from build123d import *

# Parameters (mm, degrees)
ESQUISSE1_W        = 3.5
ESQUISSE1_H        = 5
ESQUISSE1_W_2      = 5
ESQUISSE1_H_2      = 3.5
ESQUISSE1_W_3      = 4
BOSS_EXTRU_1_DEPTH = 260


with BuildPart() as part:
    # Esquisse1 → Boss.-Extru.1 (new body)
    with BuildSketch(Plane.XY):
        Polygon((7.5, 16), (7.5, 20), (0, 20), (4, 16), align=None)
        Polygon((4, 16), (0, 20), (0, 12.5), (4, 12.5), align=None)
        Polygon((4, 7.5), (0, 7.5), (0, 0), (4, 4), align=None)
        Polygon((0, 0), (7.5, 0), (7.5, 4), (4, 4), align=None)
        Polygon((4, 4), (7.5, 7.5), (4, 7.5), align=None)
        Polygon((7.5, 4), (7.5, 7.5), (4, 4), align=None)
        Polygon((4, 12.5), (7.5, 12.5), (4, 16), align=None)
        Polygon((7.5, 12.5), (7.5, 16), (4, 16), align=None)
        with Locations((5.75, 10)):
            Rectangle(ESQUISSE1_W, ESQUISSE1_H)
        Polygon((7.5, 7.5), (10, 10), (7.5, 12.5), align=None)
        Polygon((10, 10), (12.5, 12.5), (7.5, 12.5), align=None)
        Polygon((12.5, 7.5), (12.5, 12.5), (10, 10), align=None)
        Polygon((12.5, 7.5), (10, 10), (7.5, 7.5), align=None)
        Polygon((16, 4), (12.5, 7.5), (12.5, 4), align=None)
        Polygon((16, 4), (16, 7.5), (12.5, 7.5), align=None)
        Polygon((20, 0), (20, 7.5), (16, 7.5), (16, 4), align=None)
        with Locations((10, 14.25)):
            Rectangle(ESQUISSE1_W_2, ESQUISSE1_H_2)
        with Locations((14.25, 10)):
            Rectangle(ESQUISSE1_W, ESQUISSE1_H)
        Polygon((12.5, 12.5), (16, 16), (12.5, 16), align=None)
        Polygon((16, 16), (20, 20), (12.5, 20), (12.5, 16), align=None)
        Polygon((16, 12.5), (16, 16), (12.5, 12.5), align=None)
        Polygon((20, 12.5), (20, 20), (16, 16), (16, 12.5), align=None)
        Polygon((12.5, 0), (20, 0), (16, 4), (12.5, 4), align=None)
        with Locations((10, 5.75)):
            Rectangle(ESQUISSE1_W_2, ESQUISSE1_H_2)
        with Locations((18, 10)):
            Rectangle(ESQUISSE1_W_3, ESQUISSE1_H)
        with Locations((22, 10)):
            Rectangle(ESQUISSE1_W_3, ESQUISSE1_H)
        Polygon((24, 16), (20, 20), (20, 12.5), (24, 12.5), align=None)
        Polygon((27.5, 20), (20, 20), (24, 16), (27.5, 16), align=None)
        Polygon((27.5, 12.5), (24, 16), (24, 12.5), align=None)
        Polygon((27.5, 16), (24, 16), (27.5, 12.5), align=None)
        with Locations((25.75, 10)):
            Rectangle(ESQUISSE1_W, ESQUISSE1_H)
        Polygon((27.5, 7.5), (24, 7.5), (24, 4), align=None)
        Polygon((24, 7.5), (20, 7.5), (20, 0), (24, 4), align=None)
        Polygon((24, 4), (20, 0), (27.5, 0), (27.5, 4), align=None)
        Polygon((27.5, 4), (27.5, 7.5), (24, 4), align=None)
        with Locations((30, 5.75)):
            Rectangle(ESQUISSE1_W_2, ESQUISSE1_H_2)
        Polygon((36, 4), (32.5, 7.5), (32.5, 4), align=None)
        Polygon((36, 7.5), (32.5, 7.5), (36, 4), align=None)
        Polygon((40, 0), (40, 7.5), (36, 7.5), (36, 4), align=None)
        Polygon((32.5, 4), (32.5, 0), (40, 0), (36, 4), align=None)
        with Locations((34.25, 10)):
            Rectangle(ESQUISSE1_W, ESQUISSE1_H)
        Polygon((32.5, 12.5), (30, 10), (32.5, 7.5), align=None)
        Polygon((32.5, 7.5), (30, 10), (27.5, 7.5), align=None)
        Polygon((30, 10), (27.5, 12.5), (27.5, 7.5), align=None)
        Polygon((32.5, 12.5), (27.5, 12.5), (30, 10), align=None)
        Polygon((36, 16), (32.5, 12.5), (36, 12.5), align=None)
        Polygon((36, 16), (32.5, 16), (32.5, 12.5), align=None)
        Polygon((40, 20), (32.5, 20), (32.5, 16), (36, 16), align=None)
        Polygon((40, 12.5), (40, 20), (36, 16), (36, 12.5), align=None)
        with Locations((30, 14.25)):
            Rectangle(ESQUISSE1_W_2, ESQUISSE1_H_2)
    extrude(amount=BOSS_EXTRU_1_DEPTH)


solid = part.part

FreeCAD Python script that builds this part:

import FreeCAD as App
import Part
import Sketcher

V = App.Vector
Q = App.Units.Quantity


def add_polygon(sketch, points):
    """Adds a closed chain of lines whose ends are joined by coincident constraints."""
    first, n = sketch.GeometryCount, len(points)
    for a, b in zip(points, points[1:] + points[:1]):
        sketch.addGeometry(Part.LineSegment(App.Vector(*a, 0), App.Vector(*b, 0)), False)
    for i in range(n):
        sketch.addConstraint(Sketcher.Constraint("Coincident", first + i, 2, first + (i + 1) % n, 1))

doc = App.newDocument("Part")
body = doc.addObject("PartDesign::Body", "Body")

sketch1 = body.newObject("Sketcher::SketchObject", "Sketch")
sketch1.AttachmentSupport = (doc.getObject("XY_Plane"), [""])
sketch1.MapMode = "FlatFace"
add_polygon(sketch1, [(7.5, 20), (0, 20), (0, 12.5), (4, 12.5), (4, 7.5), (0, 7.5), (0, 0), (7.5, 0), (7.5, 4), (12.5, 4), (12.5, 0), (27.5, 0), (27.5, 4), (32.5, 4), (32.5, 0), (40, 0), (40, 7.5), (36, 7.5), (36, 12.5), (40, 12.5), (40, 20), (32.5, 20), (32.5, 16), (27.5, 16), (27.5, 20), (12.5, 20), (12.5, 16), (7.5, 16)])
sketch1.addConstraint(Sketcher.Constraint("Horizontal", 0))
sketch1.addConstraint(Sketcher.Constraint("Vertical", 1))
sketch1.addConstraint(Sketcher.Constraint("Horizontal", 2))
sketch1.addConstraint(Sketcher.Constraint("Vertical", 3))
sketch1.addConstraint(Sketcher.Constraint("Horizontal", 4))
sketch1.addConstraint(Sketcher.Constraint("Vertical", 5))
sketch1.addConstraint(Sketcher.Constraint("Horizontal", 6))
sketch1.addConstraint(Sketcher.Constraint("Vertical", 7))
sketch1.addConstraint(Sketcher.Constraint("Horizontal", 8))
sketch1.addConstraint(Sketcher.Constraint("Vertical", 9))
sketch1.addConstraint(Sketcher.Constraint("Horizontal", 10))
sketch1.addConstraint(Sketcher.Constraint("Vertical", 11))
sketch1.addConstraint(Sketcher.Constraint("Horizontal", 12))
sketch1.addConstraint(Sketcher.Constraint("Vertical", 13))
sketch1.addConstraint(Sketcher.Constraint("Horizontal", 14))
sketch1.addConstraint(Sketcher.Constraint("Vertical", 15))
sketch1.addConstraint(Sketcher.Constraint("Horizontal", 16))
sketch1.addConstraint(Sketcher.Constraint("Vertical", 17))
sketch1.addConstraint(Sketcher.Constraint("Horizontal", 18))
sketch1.addConstraint(Sketcher.Constraint("Vertical", 19))
sketch1.addConstraint(Sketcher.Constraint("Horizontal", 20))
sketch1.addConstraint(Sketcher.Constraint("Vertical", 21))
sketch1.addConstraint(Sketcher.Constraint("Horizontal", 22))
sketch1.addConstraint(Sketcher.Constraint("Vertical", 23))
sketch1.addConstraint(Sketcher.Constraint("Horizontal", 24))
sketch1.addConstraint(Sketcher.Constraint("Vertical", 25))
sketch1.addConstraint(Sketcher.Constraint("Horizontal", 26))
sketch1.addConstraint(Sketcher.Constraint("Vertical", 27))
sketch1.addConstraint(Sketcher.Constraint("Coincident", 5, 2, -1, 1))
sketch1.addConstraint(Sketcher.Constraint("PointOnObject", 0, 2, -2))
sketch1.addConstraint(Sketcher.Constraint("PointOnObject", 9, 2, -1))
sketch1.addConstraint(Sketcher.Constraint("PointOnObject", 13, 2, -1))
sketch1.addConstraint(Sketcher.Constraint("Horizontal", 8, 2, 11, 2))
sketch1.addConstraint(Sketcher.Constraint("Horizontal", 4, 2, 15, 2))
sketch1.addConstraint(Sketcher.Constraint("Horizontal", 2, 2, 17, 2))
sketch1.addConstraint(Sketcher.Constraint("Horizontal", 0, 2, 19, 2))
sketch1.addConstraint(Sketcher.Constraint("Horizontal", 20, 2, 23, 2))
sketch1.addConstraint(Sketcher.Constraint("Horizontal", 22, 2, 25, 2))
sketch1.addConstraint(Sketcher.Constraint("Vertical", 15, 2, 18, 2))
sketch1.addConstraint(Sketcher.Constraint("Vertical", 13, 2, 20, 2))
sketch1.addConstraint(Sketcher.Constraint("Vertical", 11, 2, 22, 2))
sketch1.addConstraint(Sketcher.Constraint("Vertical", 9, 2, 24, 2))
sketch1.addConstraint(Sketcher.Constraint("Vertical", 7, 2, 26, 2))
sketch1.addConstraint(Sketcher.Constraint("Equal", 8, 12))
sketch1.addConstraint(Sketcher.Constraint("Equal", 6, 14))
sketch1.addConstraint(Sketcher.Constraint("Equal", 4, 16))
sketch1.addConstraint(Sketcher.Constraint("Equal", 20, 1))
sketch1.addConstraint(Sketcher.Constraint("Equal", 26, 3))
sketch1.addConstraint(Sketcher.Constraint("Equal", 1, 5))
sketch1.addConstraint(Sketcher.Constraint("Equal", 18, 7))
sketch1.addConstraint(Sketcher.Constraint("Equal", 13, 21))
sketch1.addConstraint(Sketcher.Constraint("DistanceX", 2, 1, 2, 2, Q("4 mm")))
sketch1.addConstraint(Sketcher.Constraint("DistanceX", 8, 1, 8, 2, Q("5 mm")))
sketch1.addConstraint(Sketcher.Constraint("DistanceX", 10, 1, 10, 2, Q("15 mm")))
sketch1.addConstraint(Sketcher.Constraint("DistanceX", 0, 2, 0, 1, Q("7.5 mm")))
pad1 = body.newObject("PartDesign::Pad", "Pad")
pad1.Profile = sketch1
pad1.Length = 260

doc.recompute()
